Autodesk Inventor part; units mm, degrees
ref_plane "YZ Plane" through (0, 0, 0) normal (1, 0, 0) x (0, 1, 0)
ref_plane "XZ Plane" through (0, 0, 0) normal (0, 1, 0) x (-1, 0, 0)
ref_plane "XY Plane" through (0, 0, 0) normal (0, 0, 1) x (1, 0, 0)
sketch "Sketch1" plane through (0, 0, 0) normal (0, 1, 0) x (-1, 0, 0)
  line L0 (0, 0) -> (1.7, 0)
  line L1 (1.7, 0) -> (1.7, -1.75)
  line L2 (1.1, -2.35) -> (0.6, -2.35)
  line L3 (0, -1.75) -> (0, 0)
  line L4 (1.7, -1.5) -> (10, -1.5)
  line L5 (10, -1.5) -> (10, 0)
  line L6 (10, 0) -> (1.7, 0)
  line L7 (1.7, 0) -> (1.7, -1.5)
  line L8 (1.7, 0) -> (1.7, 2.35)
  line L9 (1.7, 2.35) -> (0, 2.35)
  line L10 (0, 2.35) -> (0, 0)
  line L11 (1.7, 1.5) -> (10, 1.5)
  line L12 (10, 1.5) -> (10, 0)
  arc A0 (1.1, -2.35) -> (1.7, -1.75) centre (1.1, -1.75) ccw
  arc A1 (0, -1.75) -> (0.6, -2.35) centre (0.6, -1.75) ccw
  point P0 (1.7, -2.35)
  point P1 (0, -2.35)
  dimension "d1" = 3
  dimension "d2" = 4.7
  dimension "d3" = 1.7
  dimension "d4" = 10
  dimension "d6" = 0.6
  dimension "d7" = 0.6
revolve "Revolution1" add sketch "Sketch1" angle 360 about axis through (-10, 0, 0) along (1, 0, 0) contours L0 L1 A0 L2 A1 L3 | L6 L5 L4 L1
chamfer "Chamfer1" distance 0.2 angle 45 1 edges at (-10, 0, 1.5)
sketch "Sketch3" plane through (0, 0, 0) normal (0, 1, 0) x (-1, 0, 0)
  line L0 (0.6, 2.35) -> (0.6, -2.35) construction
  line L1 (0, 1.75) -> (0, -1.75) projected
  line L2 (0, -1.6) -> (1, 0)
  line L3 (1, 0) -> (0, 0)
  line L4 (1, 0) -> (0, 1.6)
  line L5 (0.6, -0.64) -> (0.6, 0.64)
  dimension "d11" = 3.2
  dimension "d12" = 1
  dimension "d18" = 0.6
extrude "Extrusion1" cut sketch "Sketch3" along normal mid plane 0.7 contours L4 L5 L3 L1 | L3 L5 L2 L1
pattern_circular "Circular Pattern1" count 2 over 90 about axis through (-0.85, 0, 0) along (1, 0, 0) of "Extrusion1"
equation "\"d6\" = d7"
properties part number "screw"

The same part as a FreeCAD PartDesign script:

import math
import FreeCAD as App
import Part
import Sketcher
from FreeCAD import Vector


def edges_at(feature, points):
    """Names of the edges that pass closest to the given points."""
    edges = feature.Shape.Edges
    near = lambda p: min(range(len(edges)), key=lambda i: edges[i].distToShape(Part.Vertex(*p))[0])
    return sorted({f"Edge{near(p) + 1}" for p in points})


def add_polygon(sketch, points):
    """Adds a closed chain of lines whose ends are joined by coincident constraints."""
    first, n = sketch.GeometryCount, len(points)
    for a, b in zip(points, points[1:] + points[:1]):
        sketch.addGeometry(Part.LineSegment(App.Vector(*a, 0), App.Vector(*b, 0)), False)
    for i in range(n):
        sketch.addConstraint(Sketcher.Constraint("Coincident", first + i, 2, first + (i + 1) % n, 1))

doc = App.newDocument("Part")
params = doc.addObject("Spreadsheet::Sheet", "Params")
for row, (alias, value) in enumerate([
    ("sketch1_radius", "0.6 mm"),
    ("sketch1_width", "10 mm"),
    ("sketch1_height", "1.5 mm"),
    ("sketch1_height2", "1.75 mm"),
    ("revolution_angle", "360 deg"),
    ("chamfer_size", "0.2 mm"),
    ("sketch2_height", "3.2 mm"),
    ("sketch2_height2", "1.28 mm"),
    ("pocket1_length", "0.7 mm"),
], start=1):
    params.set(f"A{row}", alias)
    params.set(f"B{row}", "=" + value)
    params.setAlias(f"B{row}", alias)

body = doc.addObject("PartDesign::Body", "Body")

# Sketch on XZ plane
sketch1 = body.newObject("Sketcher::SketchObject", "Sketch")
sketch1.AttachmentSupport = (doc.getObject("XZ_Plane"), [""])
sketch1.MapMode = "FlatFace"
sketch1.addGeometry([
    Part.LineSegment(Vector(0, 0, 0), Vector(0, -1.75, 0)),  # 0
    Part.ArcOfCircle(Part.Circle(Vector(-0.6, -1.75, 0), Vector(0, 0, 1), 0.6), math.radians(-90), math.radians(0)),  # 1
    Part.LineSegment(Vector(-0.6, -2.35, 0), Vector(-1.1, -2.35, 0)),  # 2
    Part.ArcOfCircle(Part.Circle(Vector(-1.1, -1.75, 0), Vector(0, 0, 1), 0.6), math.radians(180), math.radians(270)),  # 3
    Part.LineSegment(Vector(-1.7, -1.75, 0), Vector(-1.7, -1.5, 0)),  # 4
    Part.LineSegment(Vector(-1.7, -1.5, 0), Vector(-10, -1.5, 0)),  # 5
    Part.LineSegment(Vector(-10, -1.5, 0), Vector(-10, 0, 0)),  # 6
    Part.LineSegment(Vector(-10, 0, 0), Vector(0, 0, 0)),  # 7
], False)
sketch1.addConstraint([
    Sketcher.Constraint("Tangent", 0, 2, 1, 2),
    Sketcher.Constraint("Tangent", 1, 1, 2, 1),
    Sketcher.Constraint("Tangent", 2, 2, 3, 2),
    Sketcher.Constraint("Tangent", 3, 1, 4, 1),
    Sketcher.Constraint("Coincident", 4, 2, 5, 1),
    Sketcher.Constraint("Coincident", 5, 2, 6, 1),
    Sketcher.Constraint("Coincident", 6, 2, 7, 1),
    Sketcher.Constraint("Coincident", 7, 2, 0, 1),
    Sketcher.Constraint("Vertical", 0),
    Sketcher.Constraint("Horizontal", 2),
    Sketcher.Constraint("Vertical", 4),
    Sketcher.Constraint("Horizontal", 5),
    Sketcher.Constraint("Vertical", 6),
    Sketcher.Constraint("Horizontal", 7),
    Sketcher.Constraint("Coincident", 7, 2, -1, 1),
    Sketcher.Constraint("Equal", 1, 3),
    Sketcher.Constraint("Radius", 1, 0.6),
    Sketcher.Constraint("DistanceX", 7, 1, 7, 2, 10.0),
    Sketcher.Constraint("DistanceX", 3, 1, -1, 1, 1.7),
    Sketcher.Constraint("DistanceY", 6, 1, 6, 2, 1.5),
    Sketcher.Constraint("DistanceY", 0, 2, 0, 1, 1.75),
])
sketch1.setExpression("Constraints[16]", "Params.sketch1_radius")
sketch1.setExpression("Constraints[17]", "Params.sketch1_width")
sketch1.setExpression("Constraints[19]", "Params.sketch1_height")
sketch1.setExpression("Constraints[20]", "Params.sketch1_height2")
revolution = body.newObject("PartDesign::Revolution", "Revolution")
revolution.Profile = sketch1
revolution.ReferenceAxis = (sketch1, ["H_Axis"])
revolution.setExpression("Angle", "Params.revolution_angle")
doc.recompute()

chamfer = body.newObject("PartDesign::Chamfer", "Chamfer")
chamfer.Base = (revolution, edges_at(revolution, [(-10, 0, 1.5)]))
chamfer.setExpression("Size", "Params.chamfer_size")

# Sketch on XZ plane
sketch2 = body.newObject("Sketcher::SketchObject", "Sketch001")
sketch2.AttachmentSupport = (doc.getObject("XZ_Plane"), [""])
sketch2.MapMode = "FlatFace"
add_polygon(sketch2, [(-0.6, 0.6), (0, 1.6), (0, -1.6), (-0.6, -0.6)])  # lines 0-3
sketch2.addConstraint([
    Sketcher.Constraint("Vertical", 1),
    Sketcher.Constraint("Vertical", 3),
    Sketcher.Constraint("Symmetric", 0, 2, 1, 2, -1, 1),
    Sketcher.Constraint("Equal", 0, 2),
    Sketcher.Constraint("DistanceY", 1, 2, 1, 1, 3.2),
    Sketcher.Constraint("DistanceX", 2, 2, -1, 1, 0.6),
    Sketcher.Constraint("DistanceY", 3, 1, 3, 2, 1.28),
])
sketch2.setExpression("Constraints[8]", "Params.sketch2_height")
sketch2.setExpression("Constraints[10]", "Params.sketch2_height2")
pocket1 = body.newObject("PartDesign::Pocket", "Pocket")
pocket1.Profile = sketch2
pocket1.setExpression("Length", "Params.pocket1_length")
pocket1.Midplane = True
doc.recompute()

polarpattern = body.newObject("PartDesign::PolarPattern", "PolarPattern")
polarpattern.Originals = [pocket1]
polarpattern.Axis = (doc.getObject("X_Axis"), [""])
polarpattern.Angle = 90
polarpattern.Occurrences = 2
body.Tip = polarpattern

doc.recompute()
